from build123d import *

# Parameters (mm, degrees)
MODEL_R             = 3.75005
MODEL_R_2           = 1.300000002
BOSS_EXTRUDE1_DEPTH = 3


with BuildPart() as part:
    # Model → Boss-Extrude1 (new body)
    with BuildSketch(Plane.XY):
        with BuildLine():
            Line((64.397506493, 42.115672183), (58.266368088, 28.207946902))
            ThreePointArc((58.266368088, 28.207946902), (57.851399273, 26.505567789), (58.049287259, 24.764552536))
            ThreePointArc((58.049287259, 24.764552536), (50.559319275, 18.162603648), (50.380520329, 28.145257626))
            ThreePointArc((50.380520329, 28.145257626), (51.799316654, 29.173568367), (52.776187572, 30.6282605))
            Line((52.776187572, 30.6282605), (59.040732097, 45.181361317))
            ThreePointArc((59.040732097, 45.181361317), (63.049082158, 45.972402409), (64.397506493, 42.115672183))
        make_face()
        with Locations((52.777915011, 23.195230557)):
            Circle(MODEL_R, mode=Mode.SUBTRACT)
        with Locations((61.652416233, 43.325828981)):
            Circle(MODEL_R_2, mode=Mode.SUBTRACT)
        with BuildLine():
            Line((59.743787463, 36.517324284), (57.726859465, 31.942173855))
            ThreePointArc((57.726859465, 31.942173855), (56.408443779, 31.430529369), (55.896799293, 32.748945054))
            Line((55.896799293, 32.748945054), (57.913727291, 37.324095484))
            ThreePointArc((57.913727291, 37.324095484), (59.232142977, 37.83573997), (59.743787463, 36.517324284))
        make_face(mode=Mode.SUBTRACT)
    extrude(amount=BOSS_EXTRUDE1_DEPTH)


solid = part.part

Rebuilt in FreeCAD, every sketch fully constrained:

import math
import FreeCAD as App
import Part
import Sketcher

V = App.Vector
Q = App.Units.Quantity

doc = App.newDocument("Part")
body = doc.addObject("PartDesign::Body", "Body")

# Sketch on XY plane
sketch1 = doc.addObject("Sketcher::SketchObject", "Sketch")
body.addObject(sketch1)
sketch1.AttachmentSupport = (doc.XY_Plane, [""])
sketch1.MapMode = "FlatFace"
sketch1.addGeometry(Part.LineSegment(V(58.3, 28.2, 0), V(64.4, 42.1, 0)), False)
sketch1.addGeometry(Part.ArcOfCircle(Part.Circle(V(61.5, 43.3, 0), V(0, 0, 1), 3.1), math.radians(-22), math.radians(142)), False)
sketch1.addGeometry(Part.LineSegment(V(59, 45.2, 0), V(52.8, 30.6, 0)), False)
sketch1.addGeometry(Part.ArcOfCircle(Part.Circle(V(48.2, 32.6, 0), V(0, 0, 1), 5), math.radians(-64), math.radians(-24)), False)
sketch1.addGeometry(Part.ArcOfCircle(Part.Circle(V(52.8, 23.2, 0), V(0, 0, 1), 5.5), math.radians(116), math.radians(377)), False)
sketch1.addGeometry(Part.ArcOfCircle(Part.Circle(V(62.8, 26.2, 0), V(0, 0, 1), 5), math.radians(156), math.radians(197)), False)
sketch1.addGeometry(Part.Circle(V(52.8, 23.2, 0), V(0, 0, 1), 3.8), False)
sketch1.addGeometry(Part.LineSegment(V(59.7, 36.5, 0), V(57.7, 31.9, 0)), False)
sketch1.addGeometry(Part.ArcOfCircle(Part.Circle(V(56.8, 32.3, 0), V(0, 0, 1), 1), math.radians(156), math.radians(336)), False)
sketch1.addGeometry(Part.LineSegment(V(55.9, 32.7, 0), V(57.9, 37.3, 0)), False)
sketch1.addGeometry(Part.ArcOfCircle(Part.Circle(V(58.8, 36.9, 0), V(0, 0, 1), 1), math.radians(-24), math.radians(156)), False)
sketch1.addGeometry(Part.Circle(V(61.7, 43.3, 0), V(0, 0, 1), 1.3), False)
sketch1.addConstraint(Sketcher.Constraint("Coincident", 0, 2, 1, 1))
sketch1.addConstraint(Sketcher.Constraint("Coincident", 1, 2, 2, 1))
sketch1.addConstraint(Sketcher.Constraint("Coincident", 2, 2, 3, 2))
sketch1.addConstraint(Sketcher.Constraint("Coincident", 3, 1, 4, 1))
sketch1.addConstraint(Sketcher.Constraint("Coincident", 4, 2, 5, 2))
sketch1.addConstraint(Sketcher.Constraint("Coincident", 5, 1, 0, 1))
sketch1.addConstraint(Sketcher.Constraint("Tangent", 7, 2, 8, 2))
sketch1.addConstraint(Sketcher.Constraint("Tangent", 8, 1, 9, 1))
sketch1.addConstraint(Sketcher.Constraint("Tangent", 9, 2, 10, 2))
sketch1.addConstraint(Sketcher.Constraint("Tangent", 10, 1, 7, 1))
sketch1.addConstraint(Sketcher.Constraint("Equal", 8, 10))
sketch1.addConstraint(Sketcher.Constraint("Parallel", 0, 7))
sketch1.addConstraint(Sketcher.Constraint("Radius", 8, 1.0))
sketch1.addConstraint(Sketcher.Constraint("Diameter", 11, 2.6))
sketch1.addConstraint(Sketcher.Constraint("Distance", 7, 5.0))
sketch1.addConstraint(Sketcher.Constraint("Diameter", 6, 7.5001))
sketch1.addConstraint(Sketcher.Constraint("Angle", 0, Q("66.21 deg")))
sketch1.addConstraint(Sketcher.Constraint("Angle", 2, Q("-113.29 deg")))
sketch1.addConstraint(Sketcher.Constraint("Radius", 1, 3.11715))
sketch1.addConstraint(Sketcher.Constraint("Radius", 5, 4.99988))
sketch1.addConstraint(Sketcher.Constraint("Radius", 3, 4.999977))
sketch1.addConstraint(Sketcher.Constraint("Radius", 4, 5.499993))
sketch1.addConstraint(Sketcher.Constraint("DistanceY", 5, 1, 8, 1, 4.540998))
sketch1.addConstraint(Sketcher.Constraint("Distance", 0, 15.1992))
sketch1.addConstraint(Sketcher.Constraint("DistanceX", -1, 1, 8, 1, 55.896799))
sketch1.addConstraint(Sketcher.Constraint("DistanceY", 8, 3, 1, 2, 12.835802))
sketch1.addConstraint(Sketcher.Constraint("DistanceY", 2, 2, 8, 3, 1.717299))
sketch1.addConstraint(Sketcher.Constraint("DistanceY", 3, 1, 8, 3, 4.200302))
sketch1.addConstraint(Sketcher.Constraint("DistanceX", 2, 2, 4, 2, 5.2731))
sketch1.addConstraint(Sketcher.Constraint("DistanceY", -1, 1, 3, 3, 32.645239))
sketch1.addConstraint(Sketcher.Constraint("DistanceY", -1, 1, 4, 3, 23.195269))
sketch1.addConstraint(Sketcher.Constraint("DistanceY", -1, 1, 6, 3, 23.195231))
sketch1.addConstraint(Sketcher.Constraint("DistanceY", -1, 1, 8, 3, 32.345559))
sketch1.addConstraint(Sketcher.Constraint("DistanceY", -1, 1, 11, 3, 43.325829))
sketch1.addConstraint(Sketcher.Constraint("DistanceX", -1, 1, 3, 1, 50.38052))
sketch1.addConstraint(Sketcher.Constraint("DistanceX", -1, 1, 5, 1, 58.266368))
sketch1.addConstraint(Sketcher.Constraint("DistanceX", 6, 3, 5, 3, 10.063458))
sketch1.addConstraint(Sketcher.Constraint("DistanceX", 10, 3, 11, 3, 2.823659))
pad1 = doc.addObject("PartDesign::Pad", "Pad")
body.addObject(pad1)
pad1.Profile = sketch1
pad1.Length = 3

doc.recompute()
